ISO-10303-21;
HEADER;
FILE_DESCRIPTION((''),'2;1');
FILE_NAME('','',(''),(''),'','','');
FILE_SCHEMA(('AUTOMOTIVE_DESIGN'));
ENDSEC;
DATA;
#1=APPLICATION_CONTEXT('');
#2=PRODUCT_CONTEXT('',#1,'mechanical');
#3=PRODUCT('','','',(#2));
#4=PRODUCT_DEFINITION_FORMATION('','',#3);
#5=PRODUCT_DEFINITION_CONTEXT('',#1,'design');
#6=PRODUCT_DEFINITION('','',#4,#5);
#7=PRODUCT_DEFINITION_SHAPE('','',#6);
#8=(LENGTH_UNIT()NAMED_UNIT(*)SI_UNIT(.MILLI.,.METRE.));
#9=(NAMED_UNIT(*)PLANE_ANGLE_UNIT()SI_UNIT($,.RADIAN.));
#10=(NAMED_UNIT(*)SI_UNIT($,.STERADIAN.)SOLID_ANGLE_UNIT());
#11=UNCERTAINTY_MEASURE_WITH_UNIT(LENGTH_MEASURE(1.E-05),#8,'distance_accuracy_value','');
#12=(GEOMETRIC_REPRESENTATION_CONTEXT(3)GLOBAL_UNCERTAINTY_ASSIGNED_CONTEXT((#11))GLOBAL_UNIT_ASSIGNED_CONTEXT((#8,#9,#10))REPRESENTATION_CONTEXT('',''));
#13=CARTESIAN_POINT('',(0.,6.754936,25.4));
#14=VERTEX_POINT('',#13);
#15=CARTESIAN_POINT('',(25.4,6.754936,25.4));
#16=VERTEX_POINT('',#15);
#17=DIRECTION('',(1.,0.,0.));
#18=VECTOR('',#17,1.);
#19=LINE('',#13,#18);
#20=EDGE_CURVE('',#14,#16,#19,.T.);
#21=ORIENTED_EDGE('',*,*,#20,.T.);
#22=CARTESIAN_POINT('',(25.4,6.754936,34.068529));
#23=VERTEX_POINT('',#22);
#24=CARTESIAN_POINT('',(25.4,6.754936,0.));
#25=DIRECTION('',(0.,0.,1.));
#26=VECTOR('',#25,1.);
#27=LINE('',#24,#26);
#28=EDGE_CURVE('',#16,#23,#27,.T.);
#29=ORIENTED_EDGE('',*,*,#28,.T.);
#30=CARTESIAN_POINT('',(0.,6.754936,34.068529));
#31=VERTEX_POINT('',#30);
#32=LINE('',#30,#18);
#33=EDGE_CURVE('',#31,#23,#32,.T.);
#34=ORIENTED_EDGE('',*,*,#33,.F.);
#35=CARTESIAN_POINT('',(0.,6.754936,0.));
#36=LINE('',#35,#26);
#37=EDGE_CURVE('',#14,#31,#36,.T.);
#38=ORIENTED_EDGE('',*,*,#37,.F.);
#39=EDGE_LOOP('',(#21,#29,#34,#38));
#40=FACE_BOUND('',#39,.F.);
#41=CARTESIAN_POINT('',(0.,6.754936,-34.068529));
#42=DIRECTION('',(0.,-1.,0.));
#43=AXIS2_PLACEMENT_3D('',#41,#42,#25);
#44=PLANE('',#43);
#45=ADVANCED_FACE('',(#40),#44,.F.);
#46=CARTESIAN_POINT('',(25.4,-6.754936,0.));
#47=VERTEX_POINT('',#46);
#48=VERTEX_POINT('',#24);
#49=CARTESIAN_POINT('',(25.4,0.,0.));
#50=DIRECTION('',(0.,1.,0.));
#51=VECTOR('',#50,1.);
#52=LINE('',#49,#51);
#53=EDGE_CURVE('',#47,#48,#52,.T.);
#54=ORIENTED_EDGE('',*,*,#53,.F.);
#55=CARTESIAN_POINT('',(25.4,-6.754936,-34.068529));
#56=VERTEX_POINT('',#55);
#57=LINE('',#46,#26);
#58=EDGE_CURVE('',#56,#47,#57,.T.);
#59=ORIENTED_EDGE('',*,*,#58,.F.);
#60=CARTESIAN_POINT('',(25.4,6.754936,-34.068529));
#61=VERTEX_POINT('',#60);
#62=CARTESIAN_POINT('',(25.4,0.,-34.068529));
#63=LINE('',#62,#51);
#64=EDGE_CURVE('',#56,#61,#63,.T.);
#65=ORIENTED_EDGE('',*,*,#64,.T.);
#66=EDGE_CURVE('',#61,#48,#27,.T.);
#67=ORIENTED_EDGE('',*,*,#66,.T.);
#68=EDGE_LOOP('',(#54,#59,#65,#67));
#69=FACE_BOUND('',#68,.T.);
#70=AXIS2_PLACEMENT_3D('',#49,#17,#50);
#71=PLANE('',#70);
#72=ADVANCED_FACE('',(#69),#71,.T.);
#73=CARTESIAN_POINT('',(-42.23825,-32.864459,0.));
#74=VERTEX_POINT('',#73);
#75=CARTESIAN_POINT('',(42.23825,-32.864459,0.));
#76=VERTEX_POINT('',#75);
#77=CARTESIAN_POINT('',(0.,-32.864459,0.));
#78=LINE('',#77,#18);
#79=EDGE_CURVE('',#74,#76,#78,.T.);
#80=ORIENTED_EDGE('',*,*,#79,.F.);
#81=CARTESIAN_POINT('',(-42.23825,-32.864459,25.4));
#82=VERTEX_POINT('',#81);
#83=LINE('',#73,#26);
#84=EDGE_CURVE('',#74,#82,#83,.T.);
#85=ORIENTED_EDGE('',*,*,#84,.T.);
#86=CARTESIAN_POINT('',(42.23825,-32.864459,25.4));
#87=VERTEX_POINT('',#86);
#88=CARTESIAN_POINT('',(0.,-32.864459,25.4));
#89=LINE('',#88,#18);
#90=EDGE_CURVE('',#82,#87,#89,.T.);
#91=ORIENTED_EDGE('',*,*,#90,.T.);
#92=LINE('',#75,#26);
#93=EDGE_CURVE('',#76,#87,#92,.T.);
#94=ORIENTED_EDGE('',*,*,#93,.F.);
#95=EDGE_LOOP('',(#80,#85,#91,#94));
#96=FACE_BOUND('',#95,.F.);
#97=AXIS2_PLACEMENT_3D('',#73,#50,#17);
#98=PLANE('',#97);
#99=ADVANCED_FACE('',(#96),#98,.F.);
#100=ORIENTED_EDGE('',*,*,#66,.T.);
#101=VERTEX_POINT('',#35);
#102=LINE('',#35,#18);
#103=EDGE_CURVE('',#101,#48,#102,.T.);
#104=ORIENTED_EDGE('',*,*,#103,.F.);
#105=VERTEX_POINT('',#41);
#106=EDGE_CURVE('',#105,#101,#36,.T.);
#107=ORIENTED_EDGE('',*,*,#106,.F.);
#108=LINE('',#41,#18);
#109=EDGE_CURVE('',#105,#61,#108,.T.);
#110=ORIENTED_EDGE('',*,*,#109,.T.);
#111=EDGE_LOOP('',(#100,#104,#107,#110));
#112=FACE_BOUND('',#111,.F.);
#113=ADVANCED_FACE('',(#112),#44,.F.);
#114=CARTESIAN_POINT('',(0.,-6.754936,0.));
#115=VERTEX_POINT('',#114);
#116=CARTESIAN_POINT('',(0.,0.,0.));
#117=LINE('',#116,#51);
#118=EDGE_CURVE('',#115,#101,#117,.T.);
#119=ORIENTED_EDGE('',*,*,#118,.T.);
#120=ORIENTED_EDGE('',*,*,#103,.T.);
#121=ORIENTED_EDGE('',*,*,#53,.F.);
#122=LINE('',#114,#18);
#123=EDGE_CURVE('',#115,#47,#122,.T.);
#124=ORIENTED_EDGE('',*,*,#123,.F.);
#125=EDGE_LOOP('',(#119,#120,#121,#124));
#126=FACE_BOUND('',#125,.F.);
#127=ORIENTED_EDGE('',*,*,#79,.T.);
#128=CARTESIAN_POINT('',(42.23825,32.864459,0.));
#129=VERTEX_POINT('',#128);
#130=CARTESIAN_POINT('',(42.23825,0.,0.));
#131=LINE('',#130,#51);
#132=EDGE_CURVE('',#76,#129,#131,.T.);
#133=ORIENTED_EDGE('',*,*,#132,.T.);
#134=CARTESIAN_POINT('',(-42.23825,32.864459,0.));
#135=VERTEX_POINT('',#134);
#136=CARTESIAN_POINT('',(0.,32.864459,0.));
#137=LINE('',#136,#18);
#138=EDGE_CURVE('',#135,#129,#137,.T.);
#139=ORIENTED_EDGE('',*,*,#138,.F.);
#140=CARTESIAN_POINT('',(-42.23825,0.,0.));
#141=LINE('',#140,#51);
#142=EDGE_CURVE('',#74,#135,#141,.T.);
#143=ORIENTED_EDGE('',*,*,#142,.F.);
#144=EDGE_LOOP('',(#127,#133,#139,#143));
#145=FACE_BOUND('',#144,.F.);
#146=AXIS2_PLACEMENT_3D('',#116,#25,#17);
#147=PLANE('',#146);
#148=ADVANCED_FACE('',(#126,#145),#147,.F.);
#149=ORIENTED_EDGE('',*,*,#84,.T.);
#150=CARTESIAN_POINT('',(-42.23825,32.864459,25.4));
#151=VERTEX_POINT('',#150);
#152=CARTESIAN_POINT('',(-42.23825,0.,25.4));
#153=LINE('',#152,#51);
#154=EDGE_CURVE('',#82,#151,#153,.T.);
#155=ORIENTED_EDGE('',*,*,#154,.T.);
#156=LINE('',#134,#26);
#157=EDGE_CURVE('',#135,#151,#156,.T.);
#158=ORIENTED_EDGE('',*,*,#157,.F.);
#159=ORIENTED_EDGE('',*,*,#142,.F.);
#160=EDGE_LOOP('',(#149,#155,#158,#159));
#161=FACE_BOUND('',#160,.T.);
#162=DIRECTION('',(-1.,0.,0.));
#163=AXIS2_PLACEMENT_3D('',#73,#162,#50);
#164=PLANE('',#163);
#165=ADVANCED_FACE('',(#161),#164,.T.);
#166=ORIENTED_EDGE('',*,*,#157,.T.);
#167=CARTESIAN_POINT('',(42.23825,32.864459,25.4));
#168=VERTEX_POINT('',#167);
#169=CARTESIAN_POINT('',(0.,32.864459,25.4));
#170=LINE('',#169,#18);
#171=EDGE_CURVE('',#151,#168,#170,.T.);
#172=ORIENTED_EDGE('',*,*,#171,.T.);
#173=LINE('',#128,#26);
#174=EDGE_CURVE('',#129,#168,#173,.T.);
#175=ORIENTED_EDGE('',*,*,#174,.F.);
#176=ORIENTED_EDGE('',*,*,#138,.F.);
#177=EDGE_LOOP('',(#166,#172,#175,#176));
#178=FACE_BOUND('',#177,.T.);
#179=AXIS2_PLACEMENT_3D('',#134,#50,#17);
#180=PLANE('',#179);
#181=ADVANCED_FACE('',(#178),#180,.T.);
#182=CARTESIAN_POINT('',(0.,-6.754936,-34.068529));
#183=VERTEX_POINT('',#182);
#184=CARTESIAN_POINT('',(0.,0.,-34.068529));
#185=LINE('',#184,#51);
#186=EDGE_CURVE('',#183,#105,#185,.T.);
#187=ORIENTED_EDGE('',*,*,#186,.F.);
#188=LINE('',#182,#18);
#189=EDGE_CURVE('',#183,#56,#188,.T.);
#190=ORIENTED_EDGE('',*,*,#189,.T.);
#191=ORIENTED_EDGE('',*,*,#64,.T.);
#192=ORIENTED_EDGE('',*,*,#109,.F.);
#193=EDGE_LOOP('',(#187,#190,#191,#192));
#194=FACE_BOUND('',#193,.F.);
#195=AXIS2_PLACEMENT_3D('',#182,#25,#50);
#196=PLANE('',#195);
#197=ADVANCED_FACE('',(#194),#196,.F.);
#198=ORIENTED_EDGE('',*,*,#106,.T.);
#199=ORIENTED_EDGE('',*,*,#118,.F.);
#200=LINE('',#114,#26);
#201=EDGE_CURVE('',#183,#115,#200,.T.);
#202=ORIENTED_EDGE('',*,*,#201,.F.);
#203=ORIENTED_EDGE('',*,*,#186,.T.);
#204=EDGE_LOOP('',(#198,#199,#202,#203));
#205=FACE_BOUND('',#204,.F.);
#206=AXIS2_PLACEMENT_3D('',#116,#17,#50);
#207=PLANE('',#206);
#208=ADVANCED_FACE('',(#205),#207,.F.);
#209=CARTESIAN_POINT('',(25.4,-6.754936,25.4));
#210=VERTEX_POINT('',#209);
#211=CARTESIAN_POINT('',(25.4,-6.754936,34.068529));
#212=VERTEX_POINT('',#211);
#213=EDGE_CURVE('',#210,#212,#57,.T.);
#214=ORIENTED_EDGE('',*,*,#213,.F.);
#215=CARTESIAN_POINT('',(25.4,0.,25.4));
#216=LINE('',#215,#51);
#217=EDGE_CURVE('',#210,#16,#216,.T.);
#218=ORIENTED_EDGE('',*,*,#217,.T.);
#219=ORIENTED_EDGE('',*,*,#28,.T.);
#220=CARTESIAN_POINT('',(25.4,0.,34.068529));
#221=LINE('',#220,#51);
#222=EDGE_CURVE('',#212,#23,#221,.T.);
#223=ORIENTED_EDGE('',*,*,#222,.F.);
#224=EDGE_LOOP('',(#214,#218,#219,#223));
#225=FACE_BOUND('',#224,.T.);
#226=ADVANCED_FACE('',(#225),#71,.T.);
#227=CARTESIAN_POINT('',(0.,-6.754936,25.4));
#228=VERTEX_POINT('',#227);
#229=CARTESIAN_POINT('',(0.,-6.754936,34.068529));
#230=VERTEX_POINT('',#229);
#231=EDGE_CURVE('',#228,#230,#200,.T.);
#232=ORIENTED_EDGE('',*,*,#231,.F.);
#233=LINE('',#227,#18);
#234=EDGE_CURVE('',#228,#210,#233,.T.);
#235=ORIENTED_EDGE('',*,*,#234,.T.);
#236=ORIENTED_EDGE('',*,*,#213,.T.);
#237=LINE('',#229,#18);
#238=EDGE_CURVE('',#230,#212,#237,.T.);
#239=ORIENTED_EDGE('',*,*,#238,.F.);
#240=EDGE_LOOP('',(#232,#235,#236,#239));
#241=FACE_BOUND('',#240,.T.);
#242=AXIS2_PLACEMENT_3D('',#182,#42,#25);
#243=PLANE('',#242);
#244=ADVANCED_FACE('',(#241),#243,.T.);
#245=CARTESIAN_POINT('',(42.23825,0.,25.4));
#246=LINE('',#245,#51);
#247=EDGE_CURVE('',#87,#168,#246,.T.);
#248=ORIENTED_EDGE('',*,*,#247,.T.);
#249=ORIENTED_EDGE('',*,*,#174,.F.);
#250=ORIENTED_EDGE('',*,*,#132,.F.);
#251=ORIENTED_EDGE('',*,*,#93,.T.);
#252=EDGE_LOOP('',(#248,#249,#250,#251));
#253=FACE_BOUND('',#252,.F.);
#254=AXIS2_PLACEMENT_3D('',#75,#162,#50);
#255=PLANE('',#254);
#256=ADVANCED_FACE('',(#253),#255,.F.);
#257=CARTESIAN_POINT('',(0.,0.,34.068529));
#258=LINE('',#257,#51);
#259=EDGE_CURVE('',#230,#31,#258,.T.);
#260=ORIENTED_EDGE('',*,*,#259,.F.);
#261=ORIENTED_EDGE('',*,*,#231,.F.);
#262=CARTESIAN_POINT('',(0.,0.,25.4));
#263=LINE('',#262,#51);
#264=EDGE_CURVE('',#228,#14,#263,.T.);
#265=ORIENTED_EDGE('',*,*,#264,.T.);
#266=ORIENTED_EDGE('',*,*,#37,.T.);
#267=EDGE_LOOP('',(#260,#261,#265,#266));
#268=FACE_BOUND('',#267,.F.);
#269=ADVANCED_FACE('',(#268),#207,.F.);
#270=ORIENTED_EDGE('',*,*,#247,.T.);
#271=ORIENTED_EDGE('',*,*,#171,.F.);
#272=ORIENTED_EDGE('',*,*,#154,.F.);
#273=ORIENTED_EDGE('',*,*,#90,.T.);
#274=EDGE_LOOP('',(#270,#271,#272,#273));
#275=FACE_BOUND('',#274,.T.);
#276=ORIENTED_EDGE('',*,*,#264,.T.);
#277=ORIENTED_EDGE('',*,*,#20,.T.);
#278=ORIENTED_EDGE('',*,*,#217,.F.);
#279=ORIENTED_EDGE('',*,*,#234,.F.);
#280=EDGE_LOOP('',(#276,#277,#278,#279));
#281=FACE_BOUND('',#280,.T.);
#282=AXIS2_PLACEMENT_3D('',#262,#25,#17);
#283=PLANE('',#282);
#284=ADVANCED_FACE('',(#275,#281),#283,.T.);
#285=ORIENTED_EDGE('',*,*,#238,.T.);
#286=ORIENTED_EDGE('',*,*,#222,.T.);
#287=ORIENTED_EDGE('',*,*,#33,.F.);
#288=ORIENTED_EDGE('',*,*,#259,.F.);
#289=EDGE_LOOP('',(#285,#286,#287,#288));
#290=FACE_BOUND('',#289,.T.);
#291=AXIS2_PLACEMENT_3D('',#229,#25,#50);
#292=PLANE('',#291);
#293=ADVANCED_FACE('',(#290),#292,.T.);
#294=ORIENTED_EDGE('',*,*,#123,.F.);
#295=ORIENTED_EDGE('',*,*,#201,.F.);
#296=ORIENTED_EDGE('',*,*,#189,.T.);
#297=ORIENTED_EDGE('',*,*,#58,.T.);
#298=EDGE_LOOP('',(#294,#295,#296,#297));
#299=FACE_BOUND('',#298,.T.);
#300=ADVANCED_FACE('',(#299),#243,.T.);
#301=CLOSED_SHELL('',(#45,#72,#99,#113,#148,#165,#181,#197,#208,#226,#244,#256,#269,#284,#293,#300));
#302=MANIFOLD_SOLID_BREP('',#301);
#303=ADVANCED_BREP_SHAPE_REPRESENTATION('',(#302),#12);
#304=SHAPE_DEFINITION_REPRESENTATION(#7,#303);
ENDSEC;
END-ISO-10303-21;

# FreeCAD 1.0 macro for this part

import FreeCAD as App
import Part
import Sketcher
Q = App.Units.Quantity


def add_polygon(sketch, points):
    """Adds a closed chain of lines whose ends are joined by coincident constraints."""
    first, n = sketch.GeometryCount, len(points)
    for a, b in zip(points, points[1:] + points[:1]):
        sketch.addGeometry(Part.LineSegment(App.Vector(*a, 0), App.Vector(*b, 0)), False)
    for i in range(n):
        sketch.addConstraint(Sketcher.Constraint("Coincident", first + i, 2, first + (i + 1) % n, 1))

doc = App.newDocument("Part")
body = doc.addObject("PartDesign::Body", "Body")

# Sketch on XY plane
sketch1 = body.newObject("Sketcher::SketchObject", "Sketch")
sketch1.AttachmentSupport = (doc.getObject("XY_Plane"), [""])
sketch1.MapMode = "FlatFace"
add_polygon(sketch1, [(-42, 33), (-42, -33), (42, -33), (42, 33)])  # lines 0-3
sketch1.addConstraint(Sketcher.Constraint("Vertical", 0))
sketch1.addConstraint(Sketcher.Constraint("Horizontal", 1))
sketch1.addConstraint(Sketcher.Constraint("Vertical", 2))
sketch1.addConstraint(Sketcher.Constraint("Horizontal", 3))
sketch1.addConstraint(Sketcher.Constraint("Symmetric", 0, 2, 2, 2, -1, 1))
sketch1.addConstraint(Sketcher.Constraint("DistanceX", 1, 1, 1, 2, 84.4765))
sketch1.addConstraint(Sketcher.Constraint("DistanceY", 0, 2, 0, 1, 65.728918))
pad1 = body.newObject("PartDesign::Pad", "Pad")
pad1.Profile = sketch1
pad1.Length = Q("1 in")

# Sketch on YZ plane
sketch2 = body.newObject("Sketcher::SketchObject", "Sketch001")
sketch2.AttachmentSupport = (doc.getObject("YZ_Plane"), [""])
sketch2.MapMode = "FlatFace"
add_polygon(sketch2, [(-7, 34), (-7, -34), (7, -34), (7, 34)])  # lines 0-3
sketch2.addConstraint(Sketcher.Constraint("Vertical", 0))
sketch2.addConstraint(Sketcher.Constraint("Horizontal", 1))
sketch2.addConstraint(Sketcher.Constraint("Vertical", 2))
sketch2.addConstraint(Sketcher.Constraint("Horizontal", 3))
sketch2.addConstraint(Sketcher.Constraint("Symmetric", 0, 2, 2, 2, -1, 1))
sketch2.addConstraint(Sketcher.Constraint("DistanceX", 1, 1, 1, 2, 13.509872))
sketch2.addConstraint(Sketcher.Constraint("DistanceY", 0, 2, 0, 1, 68.137058))
pad2 = body.newObject("PartDesign::Pad", "Pad001")
pad2.Profile = sketch2
pad2.Length = Q("1 in")

doc.recompute()
